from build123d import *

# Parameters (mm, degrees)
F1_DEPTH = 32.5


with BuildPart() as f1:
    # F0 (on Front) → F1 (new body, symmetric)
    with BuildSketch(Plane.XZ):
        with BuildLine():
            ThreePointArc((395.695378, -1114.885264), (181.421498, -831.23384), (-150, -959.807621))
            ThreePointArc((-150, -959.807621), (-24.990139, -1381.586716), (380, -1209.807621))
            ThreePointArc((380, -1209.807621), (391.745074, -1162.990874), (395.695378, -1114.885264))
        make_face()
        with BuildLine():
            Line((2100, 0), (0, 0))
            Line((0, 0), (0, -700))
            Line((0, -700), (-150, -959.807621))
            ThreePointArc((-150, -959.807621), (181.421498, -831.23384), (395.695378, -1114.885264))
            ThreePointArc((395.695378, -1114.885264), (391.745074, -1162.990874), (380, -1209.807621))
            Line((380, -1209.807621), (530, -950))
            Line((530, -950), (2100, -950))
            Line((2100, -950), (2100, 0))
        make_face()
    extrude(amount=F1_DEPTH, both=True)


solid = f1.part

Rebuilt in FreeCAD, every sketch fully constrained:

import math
import FreeCAD as App
import Part
import Sketcher

V = App.Vector
Q = App.Units.Quantity

doc = App.newDocument("Part")
body = doc.addObject("PartDesign::Body", "Body")

sketch1 = body.newObject("Sketcher::SketchObject", "Sketch")
sketch1.AttachmentSupport = (doc.getObject("XZ_Plane"), [""])
sketch1.MapMode = "FlatFace"
sketch1.addGeometry(Part.ArcOfCircle(Part.Circle(V(101, -1115, 0), V(0, 0, 1), 295), math.radians(148), math.radians(341)), False)
sketch1.addGeometry(Part.LineSegment(V(380, -1210, 0), V(530, -950, 0)), False)
sketch1.addGeometry(Part.LineSegment(V(530, -950, 0), V(2100, -950, 0)), False)
sketch1.addGeometry(Part.LineSegment(V(2100, -950, 0), V(2100, 0, 0)), False)
sketch1.addGeometry(Part.LineSegment(V(2100, 0, 0), V(0, 0, 0)), False)
sketch1.addGeometry(Part.LineSegment(V(0, 0, 0), V(0, -700, 0)), False)
sketch1.addGeometry(Part.LineSegment(V(0, -700, 0), V(-150, -960, 0)), False)
sketch1.addConstraint(Sketcher.Constraint("Coincident", 0, 2, 1, 1))
sketch1.addConstraint(Sketcher.Constraint("Coincident", 1, 2, 2, 1))
sketch1.addConstraint(Sketcher.Constraint("Coincident", 2, 2, 3, 1))
sketch1.addConstraint(Sketcher.Constraint("Coincident", 3, 2, 4, 1))
sketch1.addConstraint(Sketcher.Constraint("Coincident", 4, 2, 5, 1))
sketch1.addConstraint(Sketcher.Constraint("Coincident", 5, 2, 6, 1))
sketch1.addConstraint(Sketcher.Constraint("Coincident", 6, 2, 0, 1))
sketch1.addConstraint(Sketcher.Constraint("Horizontal", 2))
sketch1.addConstraint(Sketcher.Constraint("Vertical", 3))
sketch1.addConstraint(Sketcher.Constraint("Horizontal", 4))
sketch1.addConstraint(Sketcher.Constraint("Vertical", 5))
sketch1.addConstraint(Sketcher.Constraint("Coincident", 4, 2, -1, 1))
sketch1.addConstraint(Sketcher.Constraint("Parallel", 1, 6))
sketch1.addConstraint(Sketcher.Constraint("Equal", 1, 6))
sketch1.addConstraint(Sketcher.Constraint("DistanceX", 2, 1, 2, 2, Q("1570 mm")))
sketch1.addConstraint(Sketcher.Constraint("DistanceX", 4, 2, 4, 1, Q("2100 mm")))
sketch1.addConstraint(Sketcher.Constraint("DistanceY", 3, 1, 3, 2, Q("950 mm")))
sketch1.addConstraint(Sketcher.Constraint("DistanceY", 5, 2, 5, 1, Q("700 mm")))
sketch1.addConstraint(Sketcher.Constraint("Angle", 1, Q("60 deg")))
sketch1.addConstraint(Sketcher.Constraint("Distance", 1, Q("300 mm")))
sketch1.addConstraint(Sketcher.Constraint("Radius", 0, Q("294.882946 mm")))
pad1 = body.newObject("PartDesign::Pad", "Pad")
pad1.Profile = sketch1
pad1.Length = 65
pad1.Midplane = True

doc.recompute()
